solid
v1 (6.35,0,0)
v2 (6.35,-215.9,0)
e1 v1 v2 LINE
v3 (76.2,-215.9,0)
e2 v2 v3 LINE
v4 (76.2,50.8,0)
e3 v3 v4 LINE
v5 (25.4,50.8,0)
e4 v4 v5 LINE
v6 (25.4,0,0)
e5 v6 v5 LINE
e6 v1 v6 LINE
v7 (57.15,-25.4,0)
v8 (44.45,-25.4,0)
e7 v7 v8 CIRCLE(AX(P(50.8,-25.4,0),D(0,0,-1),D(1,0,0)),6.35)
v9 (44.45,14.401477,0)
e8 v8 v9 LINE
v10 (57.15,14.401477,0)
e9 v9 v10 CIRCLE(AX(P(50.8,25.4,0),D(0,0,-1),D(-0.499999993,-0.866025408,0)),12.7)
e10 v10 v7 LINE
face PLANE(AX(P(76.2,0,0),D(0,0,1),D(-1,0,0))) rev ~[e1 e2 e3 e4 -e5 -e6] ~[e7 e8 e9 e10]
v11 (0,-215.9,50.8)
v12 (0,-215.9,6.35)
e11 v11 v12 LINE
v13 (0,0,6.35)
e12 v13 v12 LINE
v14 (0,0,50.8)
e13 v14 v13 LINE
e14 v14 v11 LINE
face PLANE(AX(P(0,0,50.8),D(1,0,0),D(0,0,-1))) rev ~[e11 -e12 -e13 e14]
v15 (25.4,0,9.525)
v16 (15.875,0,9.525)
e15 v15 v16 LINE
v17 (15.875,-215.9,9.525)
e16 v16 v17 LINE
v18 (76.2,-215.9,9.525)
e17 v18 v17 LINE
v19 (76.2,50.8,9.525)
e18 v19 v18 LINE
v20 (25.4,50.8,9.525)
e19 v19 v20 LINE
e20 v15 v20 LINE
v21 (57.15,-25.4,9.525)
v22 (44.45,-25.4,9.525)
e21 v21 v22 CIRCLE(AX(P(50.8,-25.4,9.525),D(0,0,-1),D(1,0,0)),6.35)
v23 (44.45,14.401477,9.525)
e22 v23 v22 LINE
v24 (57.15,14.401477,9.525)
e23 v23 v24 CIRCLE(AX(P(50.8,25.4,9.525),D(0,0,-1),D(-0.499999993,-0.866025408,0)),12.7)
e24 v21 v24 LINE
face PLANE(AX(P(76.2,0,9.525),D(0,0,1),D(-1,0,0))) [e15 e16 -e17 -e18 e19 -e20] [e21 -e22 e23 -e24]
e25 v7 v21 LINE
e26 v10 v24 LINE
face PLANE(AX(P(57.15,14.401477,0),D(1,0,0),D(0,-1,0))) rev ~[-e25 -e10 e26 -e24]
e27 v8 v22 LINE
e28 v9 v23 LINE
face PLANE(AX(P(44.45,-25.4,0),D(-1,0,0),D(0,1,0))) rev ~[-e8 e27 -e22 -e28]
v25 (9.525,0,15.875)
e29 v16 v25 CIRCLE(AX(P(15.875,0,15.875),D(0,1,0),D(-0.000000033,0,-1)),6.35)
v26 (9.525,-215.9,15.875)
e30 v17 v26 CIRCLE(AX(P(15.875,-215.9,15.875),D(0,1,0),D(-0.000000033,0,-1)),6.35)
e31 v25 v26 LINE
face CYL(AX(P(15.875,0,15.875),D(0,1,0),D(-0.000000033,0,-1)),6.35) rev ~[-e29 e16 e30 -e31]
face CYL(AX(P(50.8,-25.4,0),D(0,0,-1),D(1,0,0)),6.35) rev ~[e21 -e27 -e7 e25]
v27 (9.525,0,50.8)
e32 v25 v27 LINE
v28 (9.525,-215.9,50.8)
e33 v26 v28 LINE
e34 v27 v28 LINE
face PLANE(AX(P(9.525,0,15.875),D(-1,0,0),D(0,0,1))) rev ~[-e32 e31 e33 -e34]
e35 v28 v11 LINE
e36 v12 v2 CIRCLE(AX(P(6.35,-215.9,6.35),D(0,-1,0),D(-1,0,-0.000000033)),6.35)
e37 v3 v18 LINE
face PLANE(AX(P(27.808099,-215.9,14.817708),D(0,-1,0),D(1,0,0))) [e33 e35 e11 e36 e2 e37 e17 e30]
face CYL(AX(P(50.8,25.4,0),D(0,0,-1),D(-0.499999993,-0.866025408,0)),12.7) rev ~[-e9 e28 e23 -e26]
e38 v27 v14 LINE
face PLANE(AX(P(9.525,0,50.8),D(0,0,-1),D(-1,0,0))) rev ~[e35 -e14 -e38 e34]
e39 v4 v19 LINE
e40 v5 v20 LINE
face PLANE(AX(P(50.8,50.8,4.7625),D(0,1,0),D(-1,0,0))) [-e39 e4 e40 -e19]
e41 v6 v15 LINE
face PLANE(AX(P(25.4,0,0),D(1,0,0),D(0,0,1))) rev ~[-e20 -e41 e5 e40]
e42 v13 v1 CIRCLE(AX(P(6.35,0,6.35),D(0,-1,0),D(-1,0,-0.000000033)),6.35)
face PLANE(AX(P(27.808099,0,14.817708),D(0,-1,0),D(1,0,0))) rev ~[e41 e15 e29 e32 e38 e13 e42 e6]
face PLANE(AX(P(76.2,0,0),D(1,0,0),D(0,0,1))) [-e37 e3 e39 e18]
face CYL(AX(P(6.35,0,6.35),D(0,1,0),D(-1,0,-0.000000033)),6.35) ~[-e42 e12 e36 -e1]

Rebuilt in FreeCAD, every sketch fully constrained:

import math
import FreeCAD as App
import Part
import Sketcher
Q = App.Units.Quantity

doc = App.newDocument("Part")
params = doc.addObject("Spreadsheet::Sheet", "Params")
for row, (alias, value) in enumerate([
    ("sketch1_radius", "0.25 in"),
    ("sketch1_width", "0.375 in"),
    ("pad1_length", "8.5 in"),
    ("sketch2_width", "2 in"),
    ("sketch2_height", "0.375 in"),
    ("pad2_length", "2 in"),
    ("sketch3_radius", "0.5 in"),
    ("sketch3_radius2", "0.25 in"),
], start=1):
    params.set(f"A{row}", alias)
    params.set(f"B{row}", "=" + value)
    params.setAlias(f"B{row}", alias)

body = doc.addObject("PartDesign::Body", "Body")

# Sketch on XZ plane
sketch1 = body.newObject("Sketcher::SketchObject", "Sketch")
sketch1.AttachmentSupport = (doc.getObject("XZ_Plane"), [""])
sketch1.MapMode = "FlatFace"
sketch1.addGeometry([
    Part.LineSegment(App.Vector(10, 51, 0), App.Vector(0, 51, 0)),  # 0
    Part.LineSegment(App.Vector(0, 51, 0), App.Vector(0, 6, 0)),  # 1
    Part.ArcOfCircle(Part.Circle(App.Vector(6, 6, 0), App.Vector(0, 0, 1), 6), math.radians(-180), math.radians(-90)),  # 2
    Part.LineSegment(App.Vector(6, 0, 0), App.Vector(76, 0, 0)),  # 3
    Part.LineSegment(App.Vector(76, 0, 0), App.Vector(76, 10, 0)),  # 4
    Part.LineSegment(App.Vector(76, 10, 0), App.Vector(16, 10, 0)),  # 5
    Part.ArcOfCircle(Part.Circle(App.Vector(16, 16, 0), App.Vector(0, 0, 1), 6), math.radians(-180), math.radians(-90)),  # 6
    Part.LineSegment(App.Vector(10, 16, 0), App.Vector(10, 51, 0)),  # 7
], False)
sketch1.addConstraint([
    Sketcher.Constraint("Coincident", 0, 2, 1, 1),
    Sketcher.Constraint("Tangent", 1, 2, 2, 1),
    Sketcher.Constraint("Tangent", 2, 2, 3, 1),
    Sketcher.Constraint("Coincident", 3, 2, 4, 1),
    Sketcher.Constraint("Coincident", 4, 2, 5, 1),
    Sketcher.Constraint("Tangent", 5, 2, 6, 2),
    Sketcher.Constraint("Tangent", 6, 1, 7, 1),
    Sketcher.Constraint("Coincident", 7, 2, 0, 1),
    Sketcher.Constraint("Horizontal", 0),
    Sketcher.Constraint("Vertical", 1),
    Sketcher.Constraint("Horizontal", 3),
    Sketcher.Constraint("Vertical", 4),
    Sketcher.Constraint("Horizontal", 5),
    Sketcher.Constraint("Vertical", 7),
    Sketcher.Constraint("Equal", 2, 6),
    Sketcher.Constraint("PointOnObject", 0, 2, -2),
    Sketcher.Constraint("PointOnObject", 2, 2, -1),
    Sketcher.Constraint("Equal", 0, 4),
    Sketcher.Constraint("Radius", 2, Q("0.25 in")),
    Sketcher.Constraint("DistanceY", -1, 1, 0, 2, Q("2 in")),
    Sketcher.Constraint("DistanceX", -1, 1, 3, 2, Q("3 in")),
    Sketcher.Constraint("DistanceX", 0, 2, 0, 1, Q("0.375 in")),
])
sketch1.setExpression("Constraints[18]", "Params.sketch1_radius")
sketch1.setExpression("Constraints[21]", "Params.sketch1_width")
pad1 = body.newObject("PartDesign::Pad", "Pad")
pad1.Profile = sketch1
pad1.setExpression("Length", "Params.pad1_length")

# Sketch on XZ plane
sketch2 = body.newObject("Sketcher::SketchObject", "Sketch001")
sketch2.AttachmentSupport = (doc.getObject("XZ_Plane"), [""])
sketch2.MapMode = "FlatFace"
sketch2.addGeometry([
    Part.LineSegment(App.Vector(76, 10, 0), App.Vector(76, 0, 0)),
    Part.LineSegment(App.Vector(76, 0, 0), App.Vector(25, 0, 0)),
    Part.LineSegment(App.Vector(25, 0, 0), App.Vector(25, 10, 0)),
    Part.LineSegment(App.Vector(25, 10, 0), App.Vector(76, 10, 0)),
], False)
sketch2.addConstraint([
    Sketcher.Constraint("Coincident", 0, 2, 1, 1),
    Sketcher.Constraint("Coincident", 1, 2, 2, 1),
    Sketcher.Constraint("Coincident", 2, 2, 3, 1),
    Sketcher.Constraint("Coincident", 3, 2, 0, 1),
    Sketcher.Constraint("Vertical", 0),
    Sketcher.Constraint("Horizontal", 1),
    Sketcher.Constraint("Vertical", 2),
    Sketcher.Constraint("Horizontal", 3),
    Sketcher.Constraint("PointOnObject", 0, 2, -1),
    Sketcher.Constraint("DistanceX", 1, 2, 1, 1, Q("2 in")),
    Sketcher.Constraint("DistanceX", -1, 1, 0, 2, Q("3 in")),
    Sketcher.Constraint("DistanceY", 0, 2, 0, 1, Q("0.375 in")),
])
sketch2.setExpression("Constraints[9]", "Params.sketch2_width")
sketch2.setExpression("Constraints[11]", "Params.sketch2_height")
pad2 = body.newObject("PartDesign::Pad", "Pad001")
pad2.Profile = sketch2
pad2.setExpression("Length", "Params.pad2_length")
pad2.Reversed = True

# Sketch on XY plane
sketch3 = body.newObject("Sketcher::SketchObject", "Sketch002")
sketch3.AttachmentSupport = (doc.getObject("XY_Plane"), [""])
sketch3.MapMode = "FlatFace"
sketch3.addGeometry([
    Part.LineSegment(App.Vector(44, -25, 0), App.Vector(44, 14, 0)),
    Part.ArcOfCircle(Part.Circle(App.Vector(51, 25, 0), App.Vector(0, 0, 1), 13), math.radians(-60), math.radians(240)),
    Part.LineSegment(App.Vector(57, 14, 0), App.Vector(57, -25, 0)),
    Part.ArcOfCircle(Part.Circle(App.Vector(51, -25, 0), App.Vector(0, 0, 1), 6), math.radians(180), math.radians(360)),
], False)
sketch3.addConstraint([
    Sketcher.Constraint("Coincident", 0, 2, 1, 2),
    Sketcher.Constraint("Coincident", 1, 1, 2, 1),
    Sketcher.Constraint("Tangent", 2, 2, 3, 2),
    Sketcher.Constraint("Tangent", 3, 1, 0, 1),
    Sketcher.Constraint("Vertical", 0),
    Sketcher.Constraint("Vertical", 2),
    Sketcher.Constraint("Symmetric", 1, 3, 3, 3, -1),
    Sketcher.Constraint("Radius", 1, Q("0.5 in")),
    Sketcher.Constraint("Radius", 3, Q("0.25 in")),
    Sketcher.Constraint("DistanceX", -1, 1, 1, 3, Q("2 in")),
    Sketcher.Constraint("DistanceY", -1, 1, 1, 3, Q("1 in")),
])
sketch3.setExpression("Constraints[7]", "Params.sketch3_radius")
sketch3.setExpression("Constraints[8]", "Params.sketch3_radius2")
pocket1 = body.newObject("PartDesign::Pocket", "Pocket")
pocket1.Profile = sketch3
pocket1.Type = "ThroughAll"
pocket1.Reversed = True

doc.recompute()
